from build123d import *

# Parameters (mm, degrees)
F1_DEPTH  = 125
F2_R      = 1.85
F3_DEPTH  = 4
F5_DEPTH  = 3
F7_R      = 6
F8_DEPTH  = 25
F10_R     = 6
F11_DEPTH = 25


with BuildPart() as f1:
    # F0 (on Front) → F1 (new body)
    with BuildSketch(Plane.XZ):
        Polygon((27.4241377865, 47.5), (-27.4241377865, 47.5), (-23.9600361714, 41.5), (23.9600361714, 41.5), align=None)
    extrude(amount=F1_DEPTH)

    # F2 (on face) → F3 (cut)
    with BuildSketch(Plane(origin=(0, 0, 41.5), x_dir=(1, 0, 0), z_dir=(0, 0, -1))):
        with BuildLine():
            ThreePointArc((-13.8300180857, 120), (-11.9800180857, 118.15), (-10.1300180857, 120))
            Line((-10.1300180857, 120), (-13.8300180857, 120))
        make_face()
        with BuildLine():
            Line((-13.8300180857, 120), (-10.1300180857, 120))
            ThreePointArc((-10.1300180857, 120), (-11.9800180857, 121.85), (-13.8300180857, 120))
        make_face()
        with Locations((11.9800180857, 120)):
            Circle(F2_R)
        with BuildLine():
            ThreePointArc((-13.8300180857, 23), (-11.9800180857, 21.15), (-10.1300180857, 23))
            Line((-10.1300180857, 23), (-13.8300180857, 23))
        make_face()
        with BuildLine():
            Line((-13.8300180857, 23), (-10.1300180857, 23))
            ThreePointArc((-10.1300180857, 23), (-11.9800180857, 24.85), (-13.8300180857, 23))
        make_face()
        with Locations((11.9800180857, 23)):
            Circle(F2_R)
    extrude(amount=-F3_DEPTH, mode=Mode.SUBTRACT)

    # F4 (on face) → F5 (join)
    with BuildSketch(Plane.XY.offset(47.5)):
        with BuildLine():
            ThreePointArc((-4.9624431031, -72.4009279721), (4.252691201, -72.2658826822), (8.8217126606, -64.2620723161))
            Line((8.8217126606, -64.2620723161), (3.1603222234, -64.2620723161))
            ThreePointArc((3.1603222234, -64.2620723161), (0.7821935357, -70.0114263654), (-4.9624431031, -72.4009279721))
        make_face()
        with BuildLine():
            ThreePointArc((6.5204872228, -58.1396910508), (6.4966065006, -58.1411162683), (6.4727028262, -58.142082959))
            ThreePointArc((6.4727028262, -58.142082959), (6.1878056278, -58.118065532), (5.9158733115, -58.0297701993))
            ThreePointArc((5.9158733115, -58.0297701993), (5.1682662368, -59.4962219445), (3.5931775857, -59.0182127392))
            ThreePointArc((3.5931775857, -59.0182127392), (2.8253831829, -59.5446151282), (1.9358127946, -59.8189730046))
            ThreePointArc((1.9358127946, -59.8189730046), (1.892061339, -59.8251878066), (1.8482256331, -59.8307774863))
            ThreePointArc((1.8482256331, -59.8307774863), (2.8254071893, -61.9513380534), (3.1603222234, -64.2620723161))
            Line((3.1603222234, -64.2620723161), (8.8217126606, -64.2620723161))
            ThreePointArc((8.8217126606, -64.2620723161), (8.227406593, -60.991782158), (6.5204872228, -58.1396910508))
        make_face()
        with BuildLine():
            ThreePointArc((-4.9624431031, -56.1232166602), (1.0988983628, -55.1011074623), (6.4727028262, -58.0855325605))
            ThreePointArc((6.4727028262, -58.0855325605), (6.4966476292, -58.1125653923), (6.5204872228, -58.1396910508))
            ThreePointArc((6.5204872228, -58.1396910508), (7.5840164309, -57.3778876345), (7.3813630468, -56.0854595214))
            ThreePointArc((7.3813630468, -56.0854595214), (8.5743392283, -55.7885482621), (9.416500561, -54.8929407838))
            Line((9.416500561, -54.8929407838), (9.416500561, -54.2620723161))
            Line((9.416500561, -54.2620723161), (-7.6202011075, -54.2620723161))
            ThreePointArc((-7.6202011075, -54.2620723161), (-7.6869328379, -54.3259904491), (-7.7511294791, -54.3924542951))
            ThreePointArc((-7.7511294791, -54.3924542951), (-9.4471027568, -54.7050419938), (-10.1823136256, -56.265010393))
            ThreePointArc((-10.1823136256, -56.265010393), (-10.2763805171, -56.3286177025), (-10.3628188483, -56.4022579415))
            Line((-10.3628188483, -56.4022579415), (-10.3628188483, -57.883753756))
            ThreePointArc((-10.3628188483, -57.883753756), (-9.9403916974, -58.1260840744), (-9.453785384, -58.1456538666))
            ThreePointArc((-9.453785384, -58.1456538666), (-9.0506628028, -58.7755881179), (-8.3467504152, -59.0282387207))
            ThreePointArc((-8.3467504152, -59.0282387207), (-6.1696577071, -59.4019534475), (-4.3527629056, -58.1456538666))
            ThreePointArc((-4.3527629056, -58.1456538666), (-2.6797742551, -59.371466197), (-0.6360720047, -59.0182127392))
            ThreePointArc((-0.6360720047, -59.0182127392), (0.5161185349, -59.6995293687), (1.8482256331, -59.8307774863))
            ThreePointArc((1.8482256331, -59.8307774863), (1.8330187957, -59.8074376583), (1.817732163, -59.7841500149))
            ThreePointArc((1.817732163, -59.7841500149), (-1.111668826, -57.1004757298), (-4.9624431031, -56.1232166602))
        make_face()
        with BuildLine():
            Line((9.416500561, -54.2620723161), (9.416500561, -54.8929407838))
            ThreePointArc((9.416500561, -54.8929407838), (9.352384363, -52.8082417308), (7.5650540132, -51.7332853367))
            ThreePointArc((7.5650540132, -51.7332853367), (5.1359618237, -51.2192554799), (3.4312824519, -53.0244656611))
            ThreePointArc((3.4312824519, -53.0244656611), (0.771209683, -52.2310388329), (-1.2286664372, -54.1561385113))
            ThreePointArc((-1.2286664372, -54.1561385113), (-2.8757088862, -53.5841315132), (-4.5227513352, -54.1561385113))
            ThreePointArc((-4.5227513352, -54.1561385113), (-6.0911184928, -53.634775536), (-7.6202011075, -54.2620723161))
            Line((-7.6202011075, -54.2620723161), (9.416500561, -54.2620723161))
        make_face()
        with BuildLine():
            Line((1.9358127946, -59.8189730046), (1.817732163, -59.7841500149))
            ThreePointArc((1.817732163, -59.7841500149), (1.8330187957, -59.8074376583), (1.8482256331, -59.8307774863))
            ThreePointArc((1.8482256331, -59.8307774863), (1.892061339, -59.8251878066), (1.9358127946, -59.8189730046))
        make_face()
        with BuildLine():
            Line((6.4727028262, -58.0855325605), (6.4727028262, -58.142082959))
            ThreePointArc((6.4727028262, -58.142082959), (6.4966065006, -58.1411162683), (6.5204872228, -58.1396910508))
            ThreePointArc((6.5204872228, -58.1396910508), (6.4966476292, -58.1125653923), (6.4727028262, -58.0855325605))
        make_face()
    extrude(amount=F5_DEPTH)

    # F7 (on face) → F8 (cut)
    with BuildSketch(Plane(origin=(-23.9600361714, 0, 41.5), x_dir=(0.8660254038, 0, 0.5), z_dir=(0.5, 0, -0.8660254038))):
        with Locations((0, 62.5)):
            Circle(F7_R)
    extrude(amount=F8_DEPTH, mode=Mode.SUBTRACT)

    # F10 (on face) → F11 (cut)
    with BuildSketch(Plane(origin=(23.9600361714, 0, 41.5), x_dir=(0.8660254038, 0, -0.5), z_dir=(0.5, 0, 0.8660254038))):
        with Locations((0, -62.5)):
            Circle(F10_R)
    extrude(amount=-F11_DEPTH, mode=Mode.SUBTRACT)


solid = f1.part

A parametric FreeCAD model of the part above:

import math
import FreeCAD as App
import Part
import Sketcher
from FreeCAD import Vector
Q = App.Units.Quantity

doc = App.newDocument("Part")
params = doc.addObject("Spreadsheet::Sheet", "Params")
for row, (alias, value) in enumerate([
    ("pad1_length", "125 mm"),
    ("sketch2_diameter", "3.7 mm"),
    ("pocket1_length", "4 mm"),
    ("pad2_length", "3 mm"),
    ("sketch4_diameter", "12 mm"),
    ("pocket2_length", "25 mm"),
    ("sketch5_diameter", "12 mm"),
    ("pocket3_length", "25 mm"),
], start=1):
    params.set(f"A{row}", alias)
    params.set(f"B{row}", "=" + value)
    params.setAlias(f"B{row}", alias)

body = doc.addObject("PartDesign::Body", "Body")

sketch1 = body.newObject("Sketcher::SketchObject", "Sketch")
sketch1.AttachmentSupport = (doc.getObject("XZ_Plane"), [""])
sketch1.MapMode = "FlatFace"
sketch1.addGeometry([
    Part.LineSegment(Vector(27, 48, 0), Vector(-27, 48, 0)),
    Part.LineSegment(Vector(-27, 48, 0), Vector(-24, 42, 0)),
    Part.LineSegment(Vector(-24, 42, 0), Vector(24, 42, 0)),
    Part.LineSegment(Vector(24, 42, 0), Vector(27, 48, 0)),
], False)
sketch1.addConstraint([
    Sketcher.Constraint("Coincident", 0, 2, 1, 1),
    Sketcher.Constraint("Coincident", 1, 2, 2, 1),
    Sketcher.Constraint("Coincident", 2, 2, 3, 1),
    Sketcher.Constraint("Coincident", 3, 2, 0, 1),
    Sketcher.Constraint("Horizontal", 0),
    Sketcher.Constraint("Horizontal", 2),
    Sketcher.Constraint("Equal", 1, 3),
    Sketcher.Constraint("Angle", 1, Q("-60 deg")),
    Sketcher.Constraint("DistanceY", 1, 2, 0, 2, Q("6 mm")),
    Sketcher.Constraint("DistanceY", -1, 1, 0, 2, Q("47.5 mm")),
    Sketcher.Constraint("DistanceX", 0, 2, 0, 1, Q("54.848276 mm")),
    Sketcher.Constraint("DistanceX", 0, 2, -1, 1, Q("27.424138 mm")),
])
pad1 = body.newObject("PartDesign::Pad", "Pad")
pad1.Profile = sketch1
pad1.setExpression("Length", "Params.pad1_length")

sketch2 = body.newObject("Sketcher::SketchObject", "Sketch001")
sketch2.AttachmentSupport = (doc.getObject("XY_Plane"), [""])
sketch2.MapMode = "FlatFace"
sketch2.AttachmentOffset = App.Placement(Vector(0, 0, 41.5), App.Rotation())
sketch2.addGeometry([
    Part.Circle(Vector(-12, -120, 0), Vector(0, 0, 1), 1.9),
    Part.Circle(Vector(12, -120, 0), Vector(0, 0, 1), 1.9),
    Part.Circle(Vector(-12, -23, 0), Vector(0, 0, 1), 1.9),
    Part.Circle(Vector(12, -23, 0), Vector(0, 0, 1), 1.9),
], False)
sketch2.addConstraint([
    Sketcher.Constraint("Equal", 0, 1),
    Sketcher.Constraint("Equal", 1, 2),
    Sketcher.Constraint("Equal", 2, 3),
    Sketcher.Constraint("Symmetric", 0, 3, 1, 3, -2),
    Sketcher.Constraint("Symmetric", 2, 3, 3, 3, -2),
    Sketcher.Constraint("Vertical", 0, 3, 2, 3),
    Sketcher.Constraint("Diameter", 0, Q("3.7 mm")),
    Sketcher.Constraint("DistanceY", 0, 3, -1, 1, Q("120 mm")),
    Sketcher.Constraint("DistanceY", 2, 3, -1, 1, Q("23 mm")),
    Sketcher.Constraint("DistanceX", 0, 3, -1, 1, Q("11.980018 mm")),
])
sketch2.setExpression("Constraints[6]", "Params.sketch2_diameter")
pocket1 = body.newObject("PartDesign::Pocket", "Pocket")
pocket1.Profile = sketch2
pocket1.setExpression("Length", "Params.pocket1_length")
pocket1.Reversed = True

sketch3 = body.newObject("Sketcher::SketchObject", "Sketch002")
sketch3.AttachmentSupport = (doc.getObject("XY_Plane"), [""])
sketch3.MapMode = "FlatFace"
sketch3.AttachmentOffset = App.Placement(Vector(0, 0, 47.5), App.Rotation())
sketch3.addGeometry([
    Part.ArcOfCircle(Part.Circle(Vector(-0.47, -64.26, 0), Vector(0, 0, 1), 9.29), math.radians(0), math.radians(41)),
    Part.ArcOfCircle(Part.Circle(Vector(6.43, -56.9, 0), Vector(0, 0, 1), 1.25), math.radians(-86), math.radians(41)),
    Part.ArcOfCircle(Part.Circle(Vector(7.47, -53.91, 0), Vector(0, 0, 1), 2.18), math.radians(-92), math.radians(-27)),
    Part.ArcOfCircle(Part.Circle(Vector(7.47, -53.91, 0), Vector(0, 0, 1), 2.18), math.radians(-27), math.radians(88)),
    Part.ArcOfCircle(Part.Circle(Vector(5.89, -53.64, 0), Vector(0, 0, 1), 2.54), math.radians(49), math.radians(166)),
    Part.ArcOfCircle(Part.Circle(Vector(1.42, -54.91, 0), Vector(0, 0, 1), 2.75), math.radians(43), math.radians(164)),
    Part.ArcOfCircle(Part.Circle(Vector(-2.88, -56.24, 0), Vector(0, 0, 1), 2.66), math.radians(52), math.radians(128)),
    Part.ArcOfCircle(Part.Circle(Vector(-6.01, -56.01, 0), Vector(0, 0, 1), 2.38), math.radians(51), math.radians(133)),
    Part.ArcOfCircle(Part.Circle(Vector(-6.01, -56.01, 0), Vector(0, 0, 1), 2.38), math.radians(132.65), math.radians(137.11)),
    Part.ArcOfCircle(Part.Circle(Vector(-8.29, -56.2, 0), Vector(0, 0, 1), 1.89), math.radians(73), math.radians(182)),
    Part.ArcOfCircle(Part.Circle(Vector(-9.66, -57.14, 0), Vector(0, 0, 1), 1.02), math.radians(120.88), math.radians(133.61)),
    Part.LineSegment(Vector(-10.36, -56.4, 0), Vector(-10.36, -57.88, 0)),
    Part.ArcOfCircle(Part.Circle(Vector(-9.66, -57.14, 0), Vector(0, 0, 1), 1.02), math.radians(-134), math.radians(-79)),
    Part.ArcOfCircle(Part.Circle(Vector(-8.33, -57.87, 0), Vector(0, 0, 1), 1.16), math.radians(-166), math.radians(-91)),
    Part.ArcOfCircle(Part.Circle(Vector(-6.8, -56.55, 0), Vector(0, 0, 1), 2.92), math.radians(-122), math.radians(-33)),
    Part.ArcOfCircle(Part.Circle(Vector(-2.07, -56.79, 0), Vector(0, 0, 1), 2.65), math.radians(-149), math.radians(-57)),
    Part.ArcOfCircle(Part.Circle(Vector(1.48, -56.76, 0), Vector(0, 0, 1), 3.1), math.radians(-133), math.radians(-83)),
    Part.ArcOfCircle(Part.Circle(Vector(-4.98, -64.26, 0), Vector(0, 0, 1), 8.14), math.radians(0), math.radians(33)),
    Part.ArcOfCircle(Part.Circle(Vector(-4.98, -64.26, 0), Vector(0, 0, 1), 8.14), math.radians(-90), math.radians(0)),
    Part.ArcOfCircle(Part.Circle(Vector(-0.47, -64.26, 0), Vector(0, 0, 1), 9.29), math.radians(-119), math.radians(0)),
    Part.ArcOfCircle(Part.Circle(Vector(-0.47, -64.26, 0), Vector(0, 0, 1), 9.29), math.radians(42), math.radians(119)),
    Part.LineSegment(Vector(6.47, -58.09, 0), Vector(6.47, -58.14, 0)),
    Part.ArcOfCircle(Part.Circle(Vector(6.43, -56.9, 0), Vector(0, 0, 1), 1.25), math.radians(-115), math.radians(-88)),
    Part.ArcOfCircle(Part.Circle(Vector(4.67, -58.32, 0), Vector(0, 0, 1), 1.28), math.radians(-147), math.radians(13)),
    Part.ArcOfCircle(Part.Circle(Vector(1.48, -56.76, 0), Vector(0, 0, 1), 3.1), math.radians(-82), math.radians(-47)),
    Part.LineSegment(Vector(1.94, -59.82, 0), Vector(1.82, -59.78, 0)),
    Part.ArcOfCircle(Part.Circle(Vector(-4.98, -64.26, 0), Vector(0, 0, 1), 8.14), math.radians(33), math.radians(90)),
], False)
sketch3.addConstraint([
    Sketcher.Constraint("Coincident", 0, 2, 1, 1),
    Sketcher.Constraint("Coincident", 1, 2, 2, 1),
    Sketcher.Constraint("Tangent", 2, 2, 3, 1),
    Sketcher.Constraint("Coincident", 3, 2, 4, 1),
    Sketcher.Constraint("Coincident", 4, 2, 5, 1),
    Sketcher.Constraint("Coincident", 5, 2, 6, 1),
    Sketcher.Constraint("Coincident", 6, 2, 7, 1),
    Sketcher.Constraint("Tangent", 7, 2, 8, 1),
    Sketcher.Constraint("Coincident", 8, 2, 9, 1),
    Sketcher.Constraint("Coincident", 9, 2, 10, 1),
    Sketcher.Constraint("Coincident", 10, 2, 11, 1),
    Sketcher.Constraint("Coincident", 11, 2, 12, 1),
    Sketcher.Constraint("Coincident", 12, 2, 13, 1),
    Sketcher.Constraint("Coincident", 13, 2, 14, 1),
    Sketcher.Constraint("Coincident", 14, 2, 15, 1),
    Sketcher.Constraint("Coincident", 15, 2, 16, 1),
    Sketcher.Constraint("Coincident", 16, 2, 17, 2),
    Sketcher.Constraint("Tangent", 17, 1, 18, 2),
    Sketcher.Constraint("Coincident", 18, 1, 19, 1),
    Sketcher.Constraint("Tangent", 19, 2, 0, 1),
    Sketcher.Constraint("Coincident", 20, 1, 21, 1),
    Sketcher.Constraint("Coincident", 21, 2, 22, 2),
    Sketcher.Constraint("Coincident", 22, 1, 23, 2),
    Sketcher.Constraint("Coincident", 23, 1, 24, 2),
    Sketcher.Constraint("Coincident", 24, 1, 25, 1),
    Sketcher.Constraint("Coincident", 25, 2, 26, 1),
    Sketcher.Constraint("Coincident", 26, 2, 20, 2),
    Sketcher.Constraint("Vertical", 11),
    Sketcher.Constraint("Vertical", 21),
    Sketcher.Constraint("Coincident", 12, 3, 10, 3),
    Sketcher.Constraint("Coincident", 20, 3, 0, 3),
    Sketcher.Constraint("Coincident", 22, 3, 1, 3),
    Sketcher.Constraint("Coincident", 24, 3, 16, 3),
    Sketcher.Constraint("Coincident", 26, 3, 17, 3),
    Sketcher.Constraint("Equal", 2, 3),
    Sketcher.Constraint("Equal", 7, 8),
    Sketcher.Constraint("Equal", 10, 12),
    Sketcher.Constraint("Equal", 17, 18),
    Sketcher.Constraint("Equal", 0, 19),
    Sketcher.Constraint("Equal", 19, 20),
    Sketcher.Constraint("Equal", 1, 22),
    Sketcher.Constraint("Equal", 16, 24),
    Sketcher.Constraint("Equal", 18, 26),
    Sketcher.Constraint("Horizontal", 0, 3, 17, 3),
    Sketcher.Constraint("Horizontal", 5, 2, 6, 2),
    Sketcher.Constraint("Horizontal", 12, 2, 14, 2),
    Sketcher.Constraint("Horizontal", 26, 3, 17, 1),
    Sketcher.Constraint("Horizontal", 17, 1, 19, 2),
    Sketcher.Constraint("Horizontal", 15, 2, 23, 1),
    Sketcher.Constraint("Radius", 16, Q("3.0959 mm")),
    Sketcher.Constraint("Radius", 0, Q("9.294872 mm")),
    Sketcher.Constraint("Radius", 1, Q("1.246611 mm")),
    Sketcher.Constraint("Radius", 4, Q("2.537189 mm")),
    Sketcher.Constraint("Radius", 6, Q("2.657258 mm")),
    Sketcher.Constraint("Radius", 7, Q("2.376682 mm")),
    Sketcher.Constraint("Radius", 15, Q("2.65198 mm")),
    Sketcher.Constraint("Radius", 17, Q("8.138872 mm")),
    Sketcher.Constraint("Radius", 2, Q("2.178024 mm")),
    Sketcher.Constraint("Radius", 5, Q("2.754386 mm")),
    Sketcher.Constraint("Radius", 9, Q("1.888887 mm")),
    Sketcher.Constraint("Radius", 10, Q("1.023066 mm")),
    Sketcher.Constraint("Radius", 13, Q("1.159195 mm")),
    Sketcher.Constraint("Radius", 14, Q("2.922952 mm")),
    Sketcher.Constraint("Radius", 23, Q("1.282124 mm")),
    Sketcher.Constraint("DistanceY", 21, 2, 21, 1, Q("0.05655 mm")),
    Sketcher.Constraint("DistanceY", 9, 3, -1, 1, Q("56.201501 mm")),
    Sketcher.Constraint("DistanceX", -1, 1, 2, 2, Q("9.416501 mm")),
    Sketcher.Constraint("DistanceX", 7, 2, -1, 1, Q("7.620201 mm")),
    Sketcher.Constraint("DistanceY", 0, 3, 2, 3, Q("10.3527 mm")),
    Sketcher.Constraint("DistanceX", 4, 3, 2, 3, Q("1.580799 mm")),
    Sketcher.Constraint("DistanceY", 16, 3, 5, 3, Q("1.8494 mm")),
    Sketcher.Constraint("DistanceX", 14, 3, 6, 2, Q("2.2776 mm")),
    Sketcher.Constraint("DistanceY", 14, 3, 8, 2, Q("2.155401 mm")),
    Sketcher.Constraint("DistanceY", 12, 2, 11, 2, Q("0.2619 mm")),
    Sketcher.Constraint("DistanceY", 14, 2, 14, 3, Q("1.597799 mm")),
    Sketcher.Constraint("Distance", 25, Q("0.123108 mm")),
    Sketcher.Constraint("DistanceY", 11, 2, 11, 1, Q("1.481496 mm")),
    Sketcher.Constraint("DistanceX", 0, 3, -1, 1, Q("0.473159 mm")),
    Sketcher.Constraint("DistanceX", -1, 1, 2, 3, Q("7.473209 mm")),
    Sketcher.Constraint("DistanceX", -1, 1, 5, 3, Q("1.421222 mm")),
    Sketcher.Constraint("DistanceX", 6, 3, -1, 1, Q("2.875709 mm")),
    Sketcher.Constraint("DistanceY", 6, 3, -1, 1, Q("56.24139 mm")),
    Sketcher.Constraint("DistanceY", 7, 3, -1, 1, Q("56.010069 mm")),
    Sketcher.Constraint("DistanceX", 10, 3, -1, 1, Q("9.657159 mm")),
    Sketcher.Constraint("DistanceX", 13, 3, -1, 1, Q("8.32804 mm")),
    Sketcher.Constraint("DistanceX", 14, 3, -1, 1, Q("6.800352 mm")),
    Sketcher.Constraint("DistanceY", 15, 3, -1, 1, Q("56.78968 mm")),
    Sketcher.Constraint("DistanceX", 17, 3, -1, 1, Q("4.978549 mm")),
    Sketcher.Constraint("DistanceY", 23, 3, -1, 1, Q("58.316481 mm")),
    Sketcher.Constraint("DistanceY", 0, 2, -1, 1, Q("58.139691 mm")),
    Sketcher.Constraint("DistanceY", 1, 2, -1, 1, Q("56.08546 mm")),
    Sketcher.Constraint("DistanceY", 2, 2, -1, 1, Q("54.892941 mm")),
    Sketcher.Constraint("DistanceX", 8, 2, -1, 1, Q("7.751129 mm")),
    Sketcher.Constraint("DistanceY", 22, 1, -1, 1, Q("58.02977 mm")),
    Sketcher.Constraint("DistanceY", 25, 2, -1, 1, Q("59.78415 mm")),
    Sketcher.Constraint("DistanceY", 1, 3, 4, 3, Q("3.255009 mm")),
])
pad2 = body.newObject("PartDesign::Pad", "Pad001")
pad2.Profile = sketch3
pad2.setExpression("Length", "Params.pad2_length")

sketch4 = body.newObject("Sketcher::SketchObject", "Sketch003")
sketch4.Placement = App.Placement(Vector(-23.960036, 0, 41.5), App.Rotation(Vector(0.866025404, 0, 0.5), Vector(0, -1, 0), Vector(0.5, 0, -0.866025404), "ZXY"))
sketch4.addGeometry(Part.Circle(Vector(0, 63, 0), Vector(0, 0, 1), 6), False)
sketch4.addConstraint([
    Sketcher.Constraint("PointOnObject", 0, 3, -2),
    Sketcher.Constraint("Diameter", 0, Q("12 mm")),
    Sketcher.Constraint("DistanceY", -1, 1, 0, 3, Q("62.5 mm")),
])
sketch4.setExpression("Constraints[1]", "Params.sketch4_diameter")
pocket2 = body.newObject("PartDesign::Pocket", "Pocket001")
pocket2.Profile = sketch4
pocket2.setExpression("Length", "Params.pocket2_length")
pocket2.Reversed = True

sketch5 = body.newObject("Sketcher::SketchObject", "Sketch004")
sketch5.Placement = App.Placement(Vector(23.960036, 0, 41.5), App.Rotation(Vector(0.866025404, 0, -0.5), Vector(0, 1, 0), Vector(0.5, 0, 0.866025404), "ZXY"))
sketch5.addGeometry(Part.Circle(Vector(0, -63, 0), Vector(0, 0, 1), 6), False)
sketch5.addConstraint([
    Sketcher.Constraint("PointOnObject", 0, 3, -2),
    Sketcher.Constraint("Diameter", 0, Q("12 mm")),
    Sketcher.Constraint("DistanceY", 0, 3, -1, 1, Q("62.5 mm")),
])
sketch5.setExpression("Constraints[1]", "Params.sketch5_diameter")
pocket3 = body.newObject("PartDesign::Pocket", "Pocket002")
pocket3.Profile = sketch5
pocket3.setExpression("Length", "Params.pocket3_length")

doc.recompute()
